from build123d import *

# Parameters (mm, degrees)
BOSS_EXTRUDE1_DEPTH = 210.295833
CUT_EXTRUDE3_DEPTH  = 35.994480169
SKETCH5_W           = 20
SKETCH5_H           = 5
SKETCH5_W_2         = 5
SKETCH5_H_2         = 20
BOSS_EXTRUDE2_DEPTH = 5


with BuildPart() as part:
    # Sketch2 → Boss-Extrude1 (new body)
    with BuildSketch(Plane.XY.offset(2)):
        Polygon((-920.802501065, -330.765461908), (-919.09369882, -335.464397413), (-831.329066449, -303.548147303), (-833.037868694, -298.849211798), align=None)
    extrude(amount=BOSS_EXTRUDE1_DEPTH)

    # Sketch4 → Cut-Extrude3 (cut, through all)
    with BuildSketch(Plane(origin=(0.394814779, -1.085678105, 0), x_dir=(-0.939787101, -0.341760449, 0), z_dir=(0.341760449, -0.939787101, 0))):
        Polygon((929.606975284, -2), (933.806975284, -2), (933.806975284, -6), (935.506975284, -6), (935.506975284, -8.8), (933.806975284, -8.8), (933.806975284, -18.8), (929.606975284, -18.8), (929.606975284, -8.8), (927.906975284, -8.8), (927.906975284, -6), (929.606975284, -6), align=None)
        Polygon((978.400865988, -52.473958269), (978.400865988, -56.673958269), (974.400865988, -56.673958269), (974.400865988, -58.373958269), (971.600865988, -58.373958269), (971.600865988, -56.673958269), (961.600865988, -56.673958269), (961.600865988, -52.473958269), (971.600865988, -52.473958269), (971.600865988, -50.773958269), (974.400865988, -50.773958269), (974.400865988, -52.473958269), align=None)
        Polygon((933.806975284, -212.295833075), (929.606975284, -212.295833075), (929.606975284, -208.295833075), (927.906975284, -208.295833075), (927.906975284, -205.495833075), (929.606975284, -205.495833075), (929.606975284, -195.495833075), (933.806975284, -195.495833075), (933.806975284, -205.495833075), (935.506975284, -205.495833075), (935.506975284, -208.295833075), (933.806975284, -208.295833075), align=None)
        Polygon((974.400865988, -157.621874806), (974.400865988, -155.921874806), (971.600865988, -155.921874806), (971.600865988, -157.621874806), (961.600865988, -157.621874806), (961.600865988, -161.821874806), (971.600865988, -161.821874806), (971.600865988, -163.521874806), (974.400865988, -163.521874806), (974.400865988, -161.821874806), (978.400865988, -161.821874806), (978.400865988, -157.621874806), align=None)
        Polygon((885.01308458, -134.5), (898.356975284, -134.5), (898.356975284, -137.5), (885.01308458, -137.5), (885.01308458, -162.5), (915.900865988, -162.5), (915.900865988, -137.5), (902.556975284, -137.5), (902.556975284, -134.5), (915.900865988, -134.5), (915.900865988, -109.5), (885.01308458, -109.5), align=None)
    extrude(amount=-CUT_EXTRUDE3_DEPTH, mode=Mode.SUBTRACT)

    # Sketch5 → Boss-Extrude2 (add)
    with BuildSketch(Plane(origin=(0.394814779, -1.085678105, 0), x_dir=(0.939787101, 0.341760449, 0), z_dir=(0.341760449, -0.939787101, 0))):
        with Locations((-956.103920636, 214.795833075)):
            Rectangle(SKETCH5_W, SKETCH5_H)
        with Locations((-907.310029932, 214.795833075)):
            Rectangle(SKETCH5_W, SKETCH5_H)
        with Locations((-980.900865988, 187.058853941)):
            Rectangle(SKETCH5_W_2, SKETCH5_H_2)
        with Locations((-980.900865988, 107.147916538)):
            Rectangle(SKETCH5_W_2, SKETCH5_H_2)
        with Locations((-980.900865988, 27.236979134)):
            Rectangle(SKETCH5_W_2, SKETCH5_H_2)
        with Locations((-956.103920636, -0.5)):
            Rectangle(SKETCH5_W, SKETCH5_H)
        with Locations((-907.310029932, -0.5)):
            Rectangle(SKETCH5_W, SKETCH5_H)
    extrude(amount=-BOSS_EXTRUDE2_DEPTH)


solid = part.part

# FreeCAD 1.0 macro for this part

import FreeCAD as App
import Part
import Sketcher
from FreeCAD import Vector
Q = App.Units.Quantity


def add_polygon(sketch, points):
    """Adds a closed chain of lines whose ends are joined by coincident constraints."""
    first, n = sketch.GeometryCount, len(points)
    for a, b in zip(points, points[1:] + points[:1]):
        sketch.addGeometry(Part.LineSegment(App.Vector(*a, 0), App.Vector(*b, 0)), False)
    for i in range(n):
        sketch.addConstraint(Sketcher.Constraint("Coincident", first + i, 2, first + (i + 1) % n, 1))

doc = App.newDocument("Part")
body = doc.addObject("PartDesign::Body", "Body")
body.AllowCompound = True

# Sketch on XY plane
sketch1 = body.newObject("Sketcher::SketchObject", "Sketch")
sketch1.AttachmentSupport = (doc.getObject("XY_Plane"), [""])
sketch1.MapMode = "FlatFace"
sketch1.AttachmentOffset = App.Placement(Vector(0, 0, 2), App.Rotation())
add_polygon(sketch1, [(-920.8, -330.8), (-919.1, -335.5), (-831.3, -303.5), (-833, -298.8)])  # lines 0-3
sketch1.addConstraint(Sketcher.Constraint("Perpendicular", 0, 1))
sketch1.addConstraint(Sketcher.Constraint("Perpendicular", 1, 2))
sketch1.addConstraint(Sketcher.Constraint("Perpendicular", 2, 3))
sketch1.addConstraint(Sketcher.Constraint("Distance", 0, Q("5 mm")))
sketch1.addConstraint(Sketcher.Constraint("DistanceX", 0, 2, -1, 1, Q("919.093699 mm")))
sketch1.addConstraint(Sketcher.Constraint("DistanceX", 3, 2, -1, 1, Q("920.802501 mm")))
sketch1.addConstraint(Sketcher.Constraint("Distance", 1, Q("93.387781 mm")))
sketch1.addConstraint(Sketcher.Constraint("DistanceY", 2, 2, -1, 1, Q("298.849212 mm")))
pad1 = body.newObject("PartDesign::Pad", "Pad")
pad1.Profile = sketch1
pad1.Length = 210.295833

# Sketch on an angled plane
sketch2 = body.newObject("Sketcher::SketchObject", "Sketch001")
sketch2.Placement = App.Placement(Vector(0.394815, -1.085678, 0), App.Rotation(Vector(-0.939787101, -0.341760449, 0), Vector(0, 0, -1), Vector(0.341760449, -0.939787101, 0), "ZXY"))
add_polygon(sketch2, [(933.8, -2), (929.6, -2), (929.6, -6), (927.9, -6), (927.9, -8.8), (929.6, -8.8), (929.6, -18.8), (933.8, -18.8), (933.8, -8.8), (935.5, -8.8), (935.5, -6), (933.8, -6)])  # lines 0-11
add_polygon(sketch2, [(978.4, -56.7), (978.4, -52.5), (974.4, -52.5), (974.4, -50.8), (971.6, -50.8), (971.6, -52.5), (961.6, -52.5), (961.6, -56.7), (971.6, -56.7), (971.6, -58.4), (974.4, -58.4), (974.4, -56.7)])  # lines 12-23
add_polygon(sketch2, [(929.6, -212.3), (933.8, -212.3), (933.8, -208.3), (935.5, -208.3), (935.5, -205.5), (933.8, -205.5), (933.8, -195.5), (929.6, -195.5), (929.6, -205.5), (927.9, -205.5), (927.9, -208.3), (929.6, -208.3)])  # lines 24-35
add_polygon(sketch2, [(974.4, -157.6), (974.4, -155.9), (971.6, -155.9), (971.6, -157.6), (961.6, -157.6), (961.6, -161.8), (971.6, -161.8), (971.6, -163.5), (974.4, -163.5), (974.4, -161.8), (978.4, -161.8), (978.4, -157.6)])  # lines 36-47
add_polygon(sketch2, [(885, -134.5), (898.4, -134.5), (898.4, -137.5), (885, -137.5), (885, -162.5), (915.9, -162.5), (915.9, -137.5), (902.6, -137.5), (902.6, -134.5), (915.9, -134.5), (915.9, -109.5), (885, -109.5)])  # lines 48-59
sketch2.addConstraint(Sketcher.Constraint("Horizontal", 0))
sketch2.addConstraint(Sketcher.Constraint("Vertical", 1))
sketch2.addConstraint(Sketcher.Constraint("Horizontal", 2))
sketch2.addConstraint(Sketcher.Constraint("Vertical", 3))
sketch2.addConstraint(Sketcher.Constraint("Horizontal", 4))
sketch2.addConstraint(Sketcher.Constraint("Vertical", 5))
sketch2.addConstraint(Sketcher.Constraint("Horizontal", 6))
sketch2.addConstraint(Sketcher.Constraint("Vertical", 7))
sketch2.addConstraint(Sketcher.Constraint("Horizontal", 8))
sketch2.addConstraint(Sketcher.Constraint("Vertical", 9))
sketch2.addConstraint(Sketcher.Constraint("Horizontal", 10))
sketch2.addConstraint(Sketcher.Constraint("Vertical", 11))
sketch2.addConstraint(Sketcher.Constraint("Vertical", 12))
sketch2.addConstraint(Sketcher.Constraint("Horizontal", 13))
sketch2.addConstraint(Sketcher.Constraint("Vertical", 14))
sketch2.addConstraint(Sketcher.Constraint("Horizontal", 15))
sketch2.addConstraint(Sketcher.Constraint("Vertical", 16))
sketch2.addConstraint(Sketcher.Constraint("Horizontal", 17))
sketch2.addConstraint(Sketcher.Constraint("Vertical", 18))
sketch2.addConstraint(Sketcher.Constraint("Horizontal", 19))
sketch2.addConstraint(Sketcher.Constraint("Vertical", 20))
sketch2.addConstraint(Sketcher.Constraint("Horizontal", 21))
sketch2.addConstraint(Sketcher.Constraint("Vertical", 22))
sketch2.addConstraint(Sketcher.Constraint("Horizontal", 23))
sketch2.addConstraint(Sketcher.Constraint("Horizontal", 24))
sketch2.addConstraint(Sketcher.Constraint("Vertical", 25))
sketch2.addConstraint(Sketcher.Constraint("Horizontal", 26))
sketch2.addConstraint(Sketcher.Constraint("Vertical", 27))
sketch2.addConstraint(Sketcher.Constraint("Horizontal", 28))
sketch2.addConstraint(Sketcher.Constraint("Vertical", 29))
sketch2.addConstraint(Sketcher.Constraint("Horizontal", 30))
sketch2.addConstraint(Sketcher.Constraint("Vertical", 31))
sketch2.addConstraint(Sketcher.Constraint("Horizontal", 32))
sketch2.addConstraint(Sketcher.Constraint("Vertical", 33))
sketch2.addConstraint(Sketcher.Constraint("Horizontal", 34))
sketch2.addConstraint(Sketcher.Constraint("Vertical", 35))
sketch2.addConstraint(Sketcher.Constraint("Vertical", 36))
sketch2.addConstraint(Sketcher.Constraint("Horizontal", 37))
sketch2.addConstraint(Sketcher.Constraint("Vertical", 38))
sketch2.addConstraint(Sketcher.Constraint("Horizontal", 39))
sketch2.addConstraint(Sketcher.Constraint("Vertical", 40))
sketch2.addConstraint(Sketcher.Constraint("Horizontal", 41))
sketch2.addConstraint(Sketcher.Constraint("Vertical", 42))
sketch2.addConstraint(Sketcher.Constraint("Horizontal", 43))
sketch2.addConstraint(Sketcher.Constraint("Vertical", 44))
sketch2.addConstraint(Sketcher.Constraint("Horizontal", 45))
sketch2.addConstraint(Sketcher.Constraint("Vertical", 46))
sketch2.addConstraint(Sketcher.Constraint("Horizontal", 47))
sketch2.addConstraint(Sketcher.Constraint("Horizontal", 48))
sketch2.addConstraint(Sketcher.Constraint("Vertical", 49))
sketch2.addConstraint(Sketcher.Constraint("Horizontal", 50))
sketch2.addConstraint(Sketcher.Constraint("Vertical", 51))
sketch2.addConstraint(Sketcher.Constraint("Horizontal", 52))
sketch2.addConstraint(Sketcher.Constraint("Vertical", 53))
sketch2.addConstraint(Sketcher.Constraint("Horizontal", 54))
sketch2.addConstraint(Sketcher.Constraint("Vertical", 55))
sketch2.addConstraint(Sketcher.Constraint("Horizontal", 56))
sketch2.addConstraint(Sketcher.Constraint("Vertical", 57))
sketch2.addConstraint(Sketcher.Constraint("Horizontal", 58))
sketch2.addConstraint(Sketcher.Constraint("Vertical", 59))
sketch2.addConstraint(Sketcher.Constraint("Horizontal", 4, 2, 7, 2))
sketch2.addConstraint(Sketcher.Constraint("Horizontal", 2, 2, 9, 2))
sketch2.addConstraint(Sketcher.Constraint("Horizontal", 13, 2, 16, 2))
sketch2.addConstraint(Sketcher.Constraint("Horizontal", 19, 2, 22, 2))
sketch2.addConstraint(Sketcher.Constraint("Horizontal", 28, 2, 31, 2))
sketch2.addConstraint(Sketcher.Constraint("Horizontal", 26, 2, 33, 2))
sketch2.addConstraint(Sketcher.Constraint("Horizontal", 41, 2, 44, 2))
sketch2.addConstraint(Sketcher.Constraint("Horizontal", 39, 2, 46, 2))
sketch2.addConstraint(Sketcher.Constraint("Horizontal", 50, 2, 53, 2))
sketch2.addConstraint(Sketcher.Constraint("Horizontal", 48, 2, 55, 2))
sketch2.addConstraint(Sketcher.Constraint("Vertical", 1, 2, 4, 2))
sketch2.addConstraint(Sketcher.Constraint("Vertical", 7, 2, 10, 2))
sketch2.addConstraint(Sketcher.Constraint("Vertical", 16, 2, 19, 2))
sketch2.addConstraint(Sketcher.Constraint("Vertical", 14, 2, 21, 2))
sketch2.addConstraint(Sketcher.Constraint("Vertical", 11, 2, 24, 2))
sketch2.addConstraint(Sketcher.Constraint("Vertical", 9, 2, 26, 2))
sketch2.addConstraint(Sketcher.Constraint("Vertical", 25, 2, 28, 2))
sketch2.addConstraint(Sketcher.Constraint("Vertical", 5, 2, 30, 2))
sketch2.addConstraint(Sketcher.Constraint("Vertical", 3, 2, 32, 2))
sketch2.addConstraint(Sketcher.Constraint("Vertical", 31, 2, 34, 2))
sketch2.addConstraint(Sketcher.Constraint("Vertical", 22, 2, 36, 2))
sketch2.addConstraint(Sketcher.Constraint("Vertical", 20, 2, 37, 2))
sketch2.addConstraint(Sketcher.Constraint("Vertical", 18, 2, 39, 2))
sketch2.addConstraint(Sketcher.Constraint("Vertical", 38, 2, 41, 2))
sketch2.addConstraint(Sketcher.Constraint("Vertical", 36, 2, 43, 2))
sketch2.addConstraint(Sketcher.Constraint("Vertical", 23, 2, 45, 2))
sketch2.addConstraint(Sketcher.Constraint("Vertical", 53, 2, 56, 2))
sketch2.addConstraint(Sketcher.Constraint("Vertical", 51, 2, 58, 2))
sketch2.addConstraint(Sketcher.Constraint("Equal", 4, 8))
sketch2.addConstraint(Sketcher.Constraint("Equal", 50, 54))
sketch2.addConstraint(Sketcher.Constraint("Equal", 47, 1))
sketch2.addConstraint(Sketcher.Constraint("Equal", 43, 3))
sketch2.addConstraint(Sketcher.Constraint("Equal", 41, 5))
sketch2.addConstraint(Sketcher.Constraint("Equal", 30, 12))
sketch2.addConstraint(Sketcher.Constraint("Equal", 34, 14))
sketch2.addConstraint(Sketcher.Constraint("Equal", 16, 20))
sketch2.addConstraint(Sketcher.Constraint("Equal", 11, 25))
sketch2.addConstraint(Sketcher.Constraint("Equal", 9, 27))
sketch2.addConstraint(Sketcher.Constraint("Equal", 7, 29))
sketch2.addConstraint(Sketcher.Constraint("Equal", 22, 36))
sketch2.addConstraint(Sketcher.Constraint("Equal", 18, 40))
sketch2.addConstraint(Sketcher.Constraint("Equal", 38, 42))
sketch2.addConstraint(Sketcher.Constraint("Equal", 53, 57))
sketch2.addConstraint(Sketcher.Constraint("DistanceX", 13, 2, 13, 1, Q("4 mm")))
sketch2.addConstraint(Sketcher.Constraint("DistanceX", 17, 2, 17, 1, Q("10 mm")))
sketch2.addConstraint(Sketcher.Constraint("DistanceY", 49, 2, 49, 1, Q("3 mm")))
sketch2.addConstraint(Sketcher.Constraint("DistanceY", 51, 2, 51, 1, Q("25 mm")))
sketch2.addConstraint(Sketcher.Constraint("DistanceX", 0, 2, 0, 1, Q("4.2 mm")))
sketch2.addConstraint(Sketcher.Constraint("DistanceX", 2, 2, 2, 1, Q("1.7 mm")))
sketch2.addConstraint(Sketcher.Constraint("DistanceX", 15, 2, 15, 1, Q("2.8 mm")))
sketch2.addConstraint(Sketcher.Constraint("DistanceY", 0, 2, -1, 1, Q("2 mm")))
sketch2.addConstraint(Sketcher.Constraint("DistanceY", 48, 2, -1, 1, Q("134.5 mm")))
sketch2.addConstraint(Sketcher.Constraint("DistanceX", 49, 2, 54, 2, Q("4.2 mm")))
sketch2.addConstraint(Sketcher.Constraint("DistanceX", 48, 2, 30, 2, Q("31.25 mm")))
sketch2.addConstraint(Sketcher.Constraint("DistanceX", 48, 1, 48, 2, Q("13.343891 mm")))
sketch2.addConstraint(Sketcher.Constraint("DistanceY", 12, 2, -1, 1, Q("52.473958 mm")))
sketch2.addConstraint(Sketcher.Constraint("DistanceX", 6, 2, 12, 2, Q("44.593891 mm")))
sketch2.addConstraint(Sketcher.Constraint("DistanceY", 29, 2, 36, 2, Q("39.573958 mm")))
sketch2.addConstraint(Sketcher.Constraint("DistanceX", -1, 1, 0, 2, Q("929.606975 mm")))
sketch2.addConstraint(Sketcher.Constraint("DistanceY", 24, 2, -1, 1, Q("212.295833 mm")))
pocket1 = body.newObject("PartDesign::Pocket", "Pocket")
pocket1.Profile = sketch2
pocket1.Type = "ThroughAll"

# Sketch on an angled plane
sketch3 = body.newObject("Sketcher::SketchObject", "Sketch002")
sketch3.Placement = App.Placement(Vector(0.394815, -1.085678, 0), App.Rotation(Vector(0.939787101, 0.341760449, 0), Vector(0, 0, 1), Vector(0.341760449, -0.939787101, 0), "ZXY"))
add_polygon(sketch3, [(-966.1, 217.3), (-966.1, 212.3), (-946.1, 212.3), (-946.1, 217.3)])  # lines 0-3
add_polygon(sketch3, [(-917.3, 217.3), (-917.3, 212.3), (-897.3, 212.3), (-897.3, 217.3)])  # lines 4-7
add_polygon(sketch3, [(-983.4, 197.1), (-983.4, 177.1), (-978.4, 177.1), (-978.4, 197.1)])  # lines 8-11
add_polygon(sketch3, [(-983.4, 117.1), (-983.4, 97.1), (-978.4, 97.1), (-978.4, 117.1)])  # lines 12-15
add_polygon(sketch3, [(-983.4, 37.2), (-983.4, 17.2), (-978.4, 17.2), (-978.4, 37.2)])  # lines 16-19
add_polygon(sketch3, [(-966.1, 2), (-966.1, -3), (-946.1, -3), (-946.1, 2)])  # lines 20-23
add_polygon(sketch3, [(-917.3, 2), (-917.3, -3), (-897.3, -3), (-897.3, 2)])  # lines 24-27
sketch3.addConstraint(Sketcher.Constraint("Vertical", 0))
sketch3.addConstraint(Sketcher.Constraint("Horizontal", 1))
sketch3.addConstraint(Sketcher.Constraint("Vertical", 2))
sketch3.addConstraint(Sketcher.Constraint("Horizontal", 3))
sketch3.addConstraint(Sketcher.Constraint("Vertical", 4))
sketch3.addConstraint(Sketcher.Constraint("Horizontal", 5))
sketch3.addConstraint(Sketcher.Constraint("Vertical", 6))
sketch3.addConstraint(Sketcher.Constraint("Horizontal", 7))
sketch3.addConstraint(Sketcher.Constraint("Vertical", 8))
sketch3.addConstraint(Sketcher.Constraint("Horizontal", 9))
sketch3.addConstraint(Sketcher.Constraint("Vertical", 10))
sketch3.addConstraint(Sketcher.Constraint("Horizontal", 11))
sketch3.addConstraint(Sketcher.Constraint("Vertical", 12))
sketch3.addConstraint(Sketcher.Constraint("Horizontal", 13))
sketch3.addConstraint(Sketcher.Constraint("Vertical", 14))
sketch3.addConstraint(Sketcher.Constraint("Horizontal", 15))
sketch3.addConstraint(Sketcher.Constraint("Vertical", 16))
sketch3.addConstraint(Sketcher.Constraint("Horizontal", 17))
sketch3.addConstraint(Sketcher.Constraint("Vertical", 18))
sketch3.addConstraint(Sketcher.Constraint("Horizontal", 19))
sketch3.addConstraint(Sketcher.Constraint("Vertical", 20))
sketch3.addConstraint(Sketcher.Constraint("Horizontal", 21))
sketch3.addConstraint(Sketcher.Constraint("Vertical", 22))
sketch3.addConstraint(Sketcher.Constraint("Horizontal", 23))
sketch3.addConstraint(Sketcher.Constraint("Vertical", 24))
sketch3.addConstraint(Sketcher.Constraint("Horizontal", 25))
sketch3.addConstraint(Sketcher.Constraint("Vertical", 26))
sketch3.addConstraint(Sketcher.Constraint("Horizontal", 27))
sketch3.addConstraint(Sketcher.Constraint("Horizontal", 1, 2, 4, 2))
sketch3.addConstraint(Sketcher.Constraint("Horizontal", 3, 2, 6, 2))
sketch3.addConstraint(Sketcher.Constraint("Horizontal", 21, 2, 24, 2))
sketch3.addConstraint(Sketcher.Constraint("Horizontal", 23, 2, 26, 2))
sketch3.addConstraint(Sketcher.Constraint("Vertical", 11, 2, 12, 2))
sketch3.addConstraint(Sketcher.Constraint("Vertical", 10, 2, 13, 2))
sketch3.addConstraint(Sketcher.Constraint("Vertical", 15, 2, 16, 2))
sketch3.addConstraint(Sketcher.Constraint("Vertical", 14, 2, 17, 2))
sketch3.addConstraint(Sketcher.Constraint("Vertical", 3, 2, 20, 2))
sketch3.addConstraint(Sketcher.Constraint("Vertical", 2, 2, 21, 2))
sketch3.addConstraint(Sketcher.Constraint("Vertical", 7, 2, 24, 2))
sketch3.addConstraint(Sketcher.Constraint("Vertical", 6, 2, 25, 2))
sketch3.addConstraint(Sketcher.Constraint("Equal", 3, 5))
sketch3.addConstraint(Sketcher.Constraint("Equal", 19, 0))
sketch3.addConstraint(Sketcher.Constraint("Equal", 27, 8))
sketch3.addConstraint(Sketcher.Constraint("Equal", 10, 12))
sketch3.addConstraint(Sketcher.Constraint("Equal", 14, 16))
sketch3.addConstraint(Sketcher.Constraint("Equal", 6, 20))
sketch3.addConstraint(Sketcher.Constraint("DistanceX", 1, 1, 1, 2, Q("20 mm")))
sketch3.addConstraint(Sketcher.Constraint("DistanceX", 9, 1, 9, 2, Q("5 mm")))
sketch3.addConstraint(Sketcher.Constraint("DistanceY", 20, 2, -1, 1, Q("3 mm")))
sketch3.addConstraint(Sketcher.Constraint("DistanceX", 0, 2, -1, 1, Q("966.10392 mm")))
sketch3.addConstraint(Sketcher.Constraint("DistanceX", 4, 2, -1, 1, Q("917.31003 mm")))
sketch3.addConstraint(Sketcher.Constraint("DistanceY", -1, 1, 16, 2, Q("17.236979 mm")))
sketch3.addConstraint(Sketcher.Constraint("DistanceY", 8, 2, 0, 2, Q("35.236979 mm")))
sketch3.addConstraint(Sketcher.Constraint("DistanceY", -1, 1, 0, 2, Q("212.295833 mm")))
sketch3.addConstraint(Sketcher.Constraint("DistanceX", 8, 2, -1, 1, Q("983.400866 mm")))
sketch3.addConstraint(Sketcher.Constraint("DistanceY", -1, 1, 12, 2, Q("97.147916 mm")))
pad2 = body.newObject("PartDesign::Pad", "Pad001")
pad2.Profile = sketch3
pad2.Length = 5
pad2.Reversed = True

doc.recompute()
